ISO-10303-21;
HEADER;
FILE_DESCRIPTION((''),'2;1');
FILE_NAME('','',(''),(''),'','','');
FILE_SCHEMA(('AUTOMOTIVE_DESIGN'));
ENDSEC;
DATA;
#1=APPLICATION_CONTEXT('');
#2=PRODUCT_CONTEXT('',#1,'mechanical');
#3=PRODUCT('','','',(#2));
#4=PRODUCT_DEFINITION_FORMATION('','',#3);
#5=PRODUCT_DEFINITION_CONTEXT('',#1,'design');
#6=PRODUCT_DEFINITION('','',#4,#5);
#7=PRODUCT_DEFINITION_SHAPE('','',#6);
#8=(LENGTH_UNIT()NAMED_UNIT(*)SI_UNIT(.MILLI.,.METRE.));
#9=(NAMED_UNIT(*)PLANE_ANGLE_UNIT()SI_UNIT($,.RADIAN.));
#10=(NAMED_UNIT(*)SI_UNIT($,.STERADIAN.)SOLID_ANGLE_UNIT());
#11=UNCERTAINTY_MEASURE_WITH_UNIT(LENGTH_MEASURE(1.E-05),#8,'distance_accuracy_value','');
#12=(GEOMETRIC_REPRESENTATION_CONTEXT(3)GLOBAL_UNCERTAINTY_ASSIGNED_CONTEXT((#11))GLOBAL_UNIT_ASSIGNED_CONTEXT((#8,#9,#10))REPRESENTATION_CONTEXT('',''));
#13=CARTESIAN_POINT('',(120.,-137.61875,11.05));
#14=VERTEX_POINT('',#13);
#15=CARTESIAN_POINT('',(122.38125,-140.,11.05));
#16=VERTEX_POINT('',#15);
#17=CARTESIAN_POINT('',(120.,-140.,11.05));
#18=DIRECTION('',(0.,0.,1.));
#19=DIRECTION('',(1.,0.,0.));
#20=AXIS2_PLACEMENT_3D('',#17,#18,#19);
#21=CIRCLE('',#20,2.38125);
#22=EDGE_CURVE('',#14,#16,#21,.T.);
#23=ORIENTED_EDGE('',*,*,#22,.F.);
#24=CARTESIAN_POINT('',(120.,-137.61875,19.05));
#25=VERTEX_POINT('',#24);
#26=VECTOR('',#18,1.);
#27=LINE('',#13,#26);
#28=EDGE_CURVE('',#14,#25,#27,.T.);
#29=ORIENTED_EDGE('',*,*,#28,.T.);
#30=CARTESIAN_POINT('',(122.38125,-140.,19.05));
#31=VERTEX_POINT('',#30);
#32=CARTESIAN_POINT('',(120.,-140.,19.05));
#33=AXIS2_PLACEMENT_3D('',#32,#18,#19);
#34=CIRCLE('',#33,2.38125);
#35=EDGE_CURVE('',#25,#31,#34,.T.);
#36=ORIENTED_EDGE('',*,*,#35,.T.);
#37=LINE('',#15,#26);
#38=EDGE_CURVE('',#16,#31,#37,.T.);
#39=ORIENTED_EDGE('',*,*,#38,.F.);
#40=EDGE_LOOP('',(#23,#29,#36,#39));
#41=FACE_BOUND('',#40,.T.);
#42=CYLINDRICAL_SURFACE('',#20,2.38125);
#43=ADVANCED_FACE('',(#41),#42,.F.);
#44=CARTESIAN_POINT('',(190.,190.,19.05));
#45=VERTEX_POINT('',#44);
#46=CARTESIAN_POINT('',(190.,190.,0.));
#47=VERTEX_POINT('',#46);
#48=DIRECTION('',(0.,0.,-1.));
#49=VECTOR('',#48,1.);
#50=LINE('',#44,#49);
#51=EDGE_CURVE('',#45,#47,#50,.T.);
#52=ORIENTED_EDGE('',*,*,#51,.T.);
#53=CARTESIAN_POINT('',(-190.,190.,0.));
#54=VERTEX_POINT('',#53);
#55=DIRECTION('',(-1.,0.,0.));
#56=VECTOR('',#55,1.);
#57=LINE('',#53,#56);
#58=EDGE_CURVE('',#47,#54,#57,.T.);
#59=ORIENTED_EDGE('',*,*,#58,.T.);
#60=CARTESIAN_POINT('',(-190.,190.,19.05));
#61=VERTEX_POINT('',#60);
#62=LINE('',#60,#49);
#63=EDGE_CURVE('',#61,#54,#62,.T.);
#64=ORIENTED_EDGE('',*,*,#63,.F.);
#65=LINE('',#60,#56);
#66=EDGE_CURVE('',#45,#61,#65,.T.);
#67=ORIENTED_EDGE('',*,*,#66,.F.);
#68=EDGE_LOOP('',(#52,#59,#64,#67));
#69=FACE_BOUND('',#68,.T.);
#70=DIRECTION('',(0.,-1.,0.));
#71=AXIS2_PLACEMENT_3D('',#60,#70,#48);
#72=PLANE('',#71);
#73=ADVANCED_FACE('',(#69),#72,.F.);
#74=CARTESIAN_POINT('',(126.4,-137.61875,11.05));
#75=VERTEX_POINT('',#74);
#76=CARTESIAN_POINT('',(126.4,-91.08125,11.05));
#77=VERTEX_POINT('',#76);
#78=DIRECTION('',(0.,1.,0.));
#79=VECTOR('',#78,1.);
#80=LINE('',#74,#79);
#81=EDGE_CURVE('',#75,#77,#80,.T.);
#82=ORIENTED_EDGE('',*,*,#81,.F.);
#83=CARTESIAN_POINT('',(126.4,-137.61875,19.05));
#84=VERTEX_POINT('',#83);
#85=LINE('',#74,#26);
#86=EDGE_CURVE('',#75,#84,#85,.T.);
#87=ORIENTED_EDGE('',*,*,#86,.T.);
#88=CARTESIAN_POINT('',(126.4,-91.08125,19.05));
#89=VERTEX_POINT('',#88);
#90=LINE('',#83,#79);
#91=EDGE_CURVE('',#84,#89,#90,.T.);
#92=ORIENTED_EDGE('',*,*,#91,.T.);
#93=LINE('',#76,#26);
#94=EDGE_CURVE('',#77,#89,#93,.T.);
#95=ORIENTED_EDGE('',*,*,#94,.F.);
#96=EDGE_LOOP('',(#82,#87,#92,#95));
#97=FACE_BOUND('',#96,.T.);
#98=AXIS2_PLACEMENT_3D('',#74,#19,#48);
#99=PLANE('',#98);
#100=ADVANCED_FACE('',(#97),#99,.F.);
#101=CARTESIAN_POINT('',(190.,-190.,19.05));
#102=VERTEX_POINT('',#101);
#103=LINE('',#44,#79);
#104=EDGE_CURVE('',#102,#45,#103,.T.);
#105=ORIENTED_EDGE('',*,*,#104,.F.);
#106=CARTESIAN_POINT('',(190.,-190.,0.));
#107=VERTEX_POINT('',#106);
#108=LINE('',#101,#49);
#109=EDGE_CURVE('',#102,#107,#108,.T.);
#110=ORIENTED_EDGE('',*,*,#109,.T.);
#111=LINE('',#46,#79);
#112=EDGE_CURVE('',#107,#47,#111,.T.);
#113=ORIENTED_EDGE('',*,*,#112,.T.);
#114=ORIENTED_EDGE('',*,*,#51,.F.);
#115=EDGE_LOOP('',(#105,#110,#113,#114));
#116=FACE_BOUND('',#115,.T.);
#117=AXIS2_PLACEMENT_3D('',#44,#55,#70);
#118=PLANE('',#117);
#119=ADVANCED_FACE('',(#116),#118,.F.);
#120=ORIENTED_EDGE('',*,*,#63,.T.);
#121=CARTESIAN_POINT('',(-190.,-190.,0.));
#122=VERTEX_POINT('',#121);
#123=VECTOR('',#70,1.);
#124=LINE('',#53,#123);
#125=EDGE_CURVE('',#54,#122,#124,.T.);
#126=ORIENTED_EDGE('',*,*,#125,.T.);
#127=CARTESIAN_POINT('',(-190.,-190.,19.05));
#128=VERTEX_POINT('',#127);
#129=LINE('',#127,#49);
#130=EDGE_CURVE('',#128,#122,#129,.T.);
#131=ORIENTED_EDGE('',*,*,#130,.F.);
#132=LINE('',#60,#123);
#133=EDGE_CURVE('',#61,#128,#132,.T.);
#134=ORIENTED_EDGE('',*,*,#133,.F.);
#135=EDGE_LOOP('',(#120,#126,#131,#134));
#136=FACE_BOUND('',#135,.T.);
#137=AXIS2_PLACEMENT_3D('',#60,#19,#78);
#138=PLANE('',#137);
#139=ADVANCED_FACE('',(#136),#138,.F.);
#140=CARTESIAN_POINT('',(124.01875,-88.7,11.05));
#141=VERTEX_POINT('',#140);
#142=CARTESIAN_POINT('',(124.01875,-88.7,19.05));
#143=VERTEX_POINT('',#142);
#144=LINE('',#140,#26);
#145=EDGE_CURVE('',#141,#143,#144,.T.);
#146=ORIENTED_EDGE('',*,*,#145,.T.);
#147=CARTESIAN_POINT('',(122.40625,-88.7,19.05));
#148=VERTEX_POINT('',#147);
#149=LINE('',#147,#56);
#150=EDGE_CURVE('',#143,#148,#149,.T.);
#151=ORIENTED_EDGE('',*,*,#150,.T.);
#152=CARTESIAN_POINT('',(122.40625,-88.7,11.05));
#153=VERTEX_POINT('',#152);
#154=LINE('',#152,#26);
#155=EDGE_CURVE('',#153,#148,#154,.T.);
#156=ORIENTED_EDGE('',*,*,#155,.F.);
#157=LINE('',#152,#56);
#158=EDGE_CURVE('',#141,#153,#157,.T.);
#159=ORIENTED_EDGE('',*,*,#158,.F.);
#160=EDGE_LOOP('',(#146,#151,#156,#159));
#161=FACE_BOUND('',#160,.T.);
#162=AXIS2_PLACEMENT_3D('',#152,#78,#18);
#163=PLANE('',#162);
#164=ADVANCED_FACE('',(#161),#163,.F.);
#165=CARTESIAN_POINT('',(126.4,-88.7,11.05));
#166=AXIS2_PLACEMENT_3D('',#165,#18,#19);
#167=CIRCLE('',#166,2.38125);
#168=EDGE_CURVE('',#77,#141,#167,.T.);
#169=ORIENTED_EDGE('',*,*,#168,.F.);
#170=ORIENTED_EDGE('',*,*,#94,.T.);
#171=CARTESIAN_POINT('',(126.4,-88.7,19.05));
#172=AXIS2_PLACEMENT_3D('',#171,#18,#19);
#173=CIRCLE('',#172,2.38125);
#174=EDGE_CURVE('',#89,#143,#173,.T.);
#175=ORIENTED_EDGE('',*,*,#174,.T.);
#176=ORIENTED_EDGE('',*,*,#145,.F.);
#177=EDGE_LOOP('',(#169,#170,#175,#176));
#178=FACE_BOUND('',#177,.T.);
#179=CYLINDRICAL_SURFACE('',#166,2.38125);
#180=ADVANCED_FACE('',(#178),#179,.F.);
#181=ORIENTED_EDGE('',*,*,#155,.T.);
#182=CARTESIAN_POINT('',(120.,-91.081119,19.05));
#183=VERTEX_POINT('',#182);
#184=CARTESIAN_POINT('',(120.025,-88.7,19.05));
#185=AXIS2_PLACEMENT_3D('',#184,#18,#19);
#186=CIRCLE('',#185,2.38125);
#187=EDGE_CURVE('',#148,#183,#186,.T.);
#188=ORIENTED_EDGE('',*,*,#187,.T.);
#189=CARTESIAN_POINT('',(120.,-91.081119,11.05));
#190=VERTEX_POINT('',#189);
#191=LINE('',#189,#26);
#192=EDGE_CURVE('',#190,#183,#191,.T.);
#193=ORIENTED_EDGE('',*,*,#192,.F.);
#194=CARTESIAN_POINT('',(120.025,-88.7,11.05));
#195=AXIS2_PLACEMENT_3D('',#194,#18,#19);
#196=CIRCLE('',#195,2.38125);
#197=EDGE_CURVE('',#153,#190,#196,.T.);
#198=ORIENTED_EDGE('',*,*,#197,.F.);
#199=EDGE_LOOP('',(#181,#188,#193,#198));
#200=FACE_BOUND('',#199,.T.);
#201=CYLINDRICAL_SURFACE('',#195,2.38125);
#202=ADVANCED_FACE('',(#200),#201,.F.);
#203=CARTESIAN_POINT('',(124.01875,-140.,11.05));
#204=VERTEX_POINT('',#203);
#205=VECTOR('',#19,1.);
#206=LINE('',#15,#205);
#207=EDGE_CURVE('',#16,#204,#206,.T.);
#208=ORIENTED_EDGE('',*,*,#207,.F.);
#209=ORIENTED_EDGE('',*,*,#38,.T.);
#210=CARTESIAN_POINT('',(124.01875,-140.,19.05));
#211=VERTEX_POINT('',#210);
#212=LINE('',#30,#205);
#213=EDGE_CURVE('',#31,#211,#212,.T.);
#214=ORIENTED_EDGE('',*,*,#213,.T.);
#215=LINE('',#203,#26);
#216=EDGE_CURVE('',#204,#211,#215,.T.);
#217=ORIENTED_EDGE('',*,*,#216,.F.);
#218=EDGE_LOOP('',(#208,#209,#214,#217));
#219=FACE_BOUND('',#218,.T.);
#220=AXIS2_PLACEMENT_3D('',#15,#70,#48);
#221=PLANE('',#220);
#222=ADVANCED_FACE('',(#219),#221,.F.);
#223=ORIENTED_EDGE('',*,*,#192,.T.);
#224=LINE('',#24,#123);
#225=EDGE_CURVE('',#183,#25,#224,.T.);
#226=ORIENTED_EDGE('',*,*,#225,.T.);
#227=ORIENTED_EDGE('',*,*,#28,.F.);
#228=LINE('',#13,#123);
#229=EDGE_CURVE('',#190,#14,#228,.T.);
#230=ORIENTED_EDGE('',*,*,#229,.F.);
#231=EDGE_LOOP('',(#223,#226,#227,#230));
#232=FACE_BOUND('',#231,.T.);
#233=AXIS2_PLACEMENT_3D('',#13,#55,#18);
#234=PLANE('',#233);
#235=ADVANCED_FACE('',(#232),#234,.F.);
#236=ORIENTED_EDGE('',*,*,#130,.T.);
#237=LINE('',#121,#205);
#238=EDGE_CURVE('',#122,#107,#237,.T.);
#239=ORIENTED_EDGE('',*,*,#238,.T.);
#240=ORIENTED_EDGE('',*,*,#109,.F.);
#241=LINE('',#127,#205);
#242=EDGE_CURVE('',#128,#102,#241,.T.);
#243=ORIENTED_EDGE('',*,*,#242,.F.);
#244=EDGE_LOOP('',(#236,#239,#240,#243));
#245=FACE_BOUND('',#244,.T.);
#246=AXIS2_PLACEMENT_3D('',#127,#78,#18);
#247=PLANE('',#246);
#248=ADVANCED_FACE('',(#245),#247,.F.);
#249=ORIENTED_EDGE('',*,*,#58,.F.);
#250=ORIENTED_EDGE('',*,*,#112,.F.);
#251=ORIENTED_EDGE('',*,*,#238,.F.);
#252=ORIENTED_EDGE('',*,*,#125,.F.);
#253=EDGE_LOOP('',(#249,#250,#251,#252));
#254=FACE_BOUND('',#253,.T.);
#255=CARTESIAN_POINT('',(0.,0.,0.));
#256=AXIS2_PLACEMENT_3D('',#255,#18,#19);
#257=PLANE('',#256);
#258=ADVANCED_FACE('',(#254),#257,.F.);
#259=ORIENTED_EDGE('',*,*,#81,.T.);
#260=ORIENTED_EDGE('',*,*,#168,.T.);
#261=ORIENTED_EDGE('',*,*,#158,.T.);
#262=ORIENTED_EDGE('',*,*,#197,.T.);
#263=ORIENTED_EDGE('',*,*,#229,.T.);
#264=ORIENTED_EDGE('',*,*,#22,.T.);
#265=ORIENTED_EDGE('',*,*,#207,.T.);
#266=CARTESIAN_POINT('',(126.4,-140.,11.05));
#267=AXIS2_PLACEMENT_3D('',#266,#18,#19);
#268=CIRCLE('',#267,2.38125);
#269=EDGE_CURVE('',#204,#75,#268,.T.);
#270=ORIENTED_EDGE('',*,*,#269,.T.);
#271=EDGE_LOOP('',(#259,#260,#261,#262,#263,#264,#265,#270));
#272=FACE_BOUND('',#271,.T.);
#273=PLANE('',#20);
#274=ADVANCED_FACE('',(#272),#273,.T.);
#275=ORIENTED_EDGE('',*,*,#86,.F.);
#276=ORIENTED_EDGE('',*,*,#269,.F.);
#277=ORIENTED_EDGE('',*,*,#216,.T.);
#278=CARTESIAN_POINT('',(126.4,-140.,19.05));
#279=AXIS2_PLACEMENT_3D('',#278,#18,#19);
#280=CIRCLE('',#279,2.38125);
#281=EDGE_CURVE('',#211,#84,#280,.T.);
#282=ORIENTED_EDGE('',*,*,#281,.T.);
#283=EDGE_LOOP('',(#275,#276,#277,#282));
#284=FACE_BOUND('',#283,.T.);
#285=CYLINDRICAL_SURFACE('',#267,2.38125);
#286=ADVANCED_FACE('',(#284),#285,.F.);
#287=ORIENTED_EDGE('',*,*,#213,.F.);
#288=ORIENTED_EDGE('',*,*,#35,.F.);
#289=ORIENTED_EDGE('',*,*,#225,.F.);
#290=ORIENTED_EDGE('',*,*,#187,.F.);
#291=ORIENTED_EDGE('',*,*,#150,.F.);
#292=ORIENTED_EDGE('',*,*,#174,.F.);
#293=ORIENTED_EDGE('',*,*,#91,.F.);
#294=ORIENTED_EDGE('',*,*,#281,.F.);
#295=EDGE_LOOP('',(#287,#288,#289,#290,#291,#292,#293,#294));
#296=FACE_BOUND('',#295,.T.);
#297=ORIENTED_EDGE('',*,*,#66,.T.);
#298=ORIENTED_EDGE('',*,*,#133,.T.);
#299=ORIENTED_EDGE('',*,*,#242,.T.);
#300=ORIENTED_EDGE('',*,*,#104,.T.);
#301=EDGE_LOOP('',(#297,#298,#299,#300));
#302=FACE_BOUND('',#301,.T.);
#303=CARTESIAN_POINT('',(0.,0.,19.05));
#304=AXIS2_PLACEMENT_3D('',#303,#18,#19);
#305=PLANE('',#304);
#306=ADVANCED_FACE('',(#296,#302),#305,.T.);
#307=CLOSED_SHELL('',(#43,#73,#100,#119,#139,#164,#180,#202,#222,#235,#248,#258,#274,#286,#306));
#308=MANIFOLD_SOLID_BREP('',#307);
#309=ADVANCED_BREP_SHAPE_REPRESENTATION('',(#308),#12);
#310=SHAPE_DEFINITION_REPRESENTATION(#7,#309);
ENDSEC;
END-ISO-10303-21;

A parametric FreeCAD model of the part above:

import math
import FreeCAD as App
import Part
import Sketcher

V = App.Vector

doc = App.newDocument("Part")
body = doc.addObject("PartDesign::Body", "Body")

# Sketch on XY plane
sketch1 = body.newObject("Sketcher::SketchObject", "Sketch")
sketch1.AttachmentSupport = (doc.getObject("XY_Plane"), [""])
sketch1.MapMode = "FlatFace"
sketch1.addGeometry(Part.LineSegment(V(-190, 190, 0), V(-190, -190, 0)), False)
sketch1.addGeometry(Part.LineSegment(V(-190, -190, 0), V(190, -190, 0)), False)
sketch1.addGeometry(Part.LineSegment(V(190, -190, 0), V(190, 190, 0)), False)
sketch1.addGeometry(Part.LineSegment(V(190, 190, 0), V(-190, 190, 0)), False)
sketch1.addConstraint(Sketcher.Constraint("Coincident", 0, 2, 1, 1))
sketch1.addConstraint(Sketcher.Constraint("Coincident", 1, 2, 2, 1))
sketch1.addConstraint(Sketcher.Constraint("Coincident", 2, 2, 3, 1))
sketch1.addConstraint(Sketcher.Constraint("Coincident", 3, 2, 0, 1))
sketch1.addConstraint(Sketcher.Constraint("Vertical", 0))
sketch1.addConstraint(Sketcher.Constraint("Horizontal", 1))
sketch1.addConstraint(Sketcher.Constraint("Vertical", 2))
sketch1.addConstraint(Sketcher.Constraint("Horizontal", 3))
sketch1.addConstraint(Sketcher.Constraint("Symmetric", 0, 2, 2, 2, -1, 1))
sketch1.addConstraint(Sketcher.Constraint("Equal", 3, 0))
sketch1.addConstraint(Sketcher.Constraint("DistanceX", 1, 1, 1, 2, 380.0))
pad1 = body.newObject("PartDesign::Pad", "Pad")
pad1.Profile = sketch1
pad1.Length = 19.05

# Sketch on XY plane
sketch2 = body.newObject("Sketcher::SketchObject", "Sketch001")
sketch2.AttachmentSupport = (doc.getObject("XY_Plane"), [""])
sketch2.MapMode = "FlatFace"
sketch2.AttachmentOffset = App.Placement(V(0, 0, 19.05), App.Rotation())
sketch2.addGeometry(Part.LineSegment(V(120, -91.081119, 0), V(120, -137.61875, 0)), False)
sketch2.addGeometry(Part.ArcOfCircle(Part.Circle(V(120, -140, 0), V(0, 0, 1), 2.38125), math.radians(90), math.radians(360)), False)
sketch2.addGeometry(Part.LineSegment(V(122.38125, -140, 0), V(124.01875, -140, 0)), False)
sketch2.addGeometry(Part.ArcOfCircle(Part.Circle(V(126.4, -140, 0), V(0, 0, 1), 2.38125), math.radians(180), math.radians(450)), False)
sketch2.addGeometry(Part.LineSegment(V(126.4, -137.61875, 0), V(126.4, -91.08125, 0)), False)
sketch2.addGeometry(Part.ArcOfCircle(Part.Circle(V(126.4, -88.7, 0), V(0, 0, 1), 2.38125), math.radians(-90), math.radians(180)), False)
sketch2.addGeometry(Part.LineSegment(V(124.01875, -88.7, 0), V(122.40625, -88.7, 0)), False)
sketch2.addGeometry(Part.ArcOfCircle(Part.Circle(V(120.025, -88.7, 0), V(0, 0, 1), 2.38125), math.radians(0), math.radians(269.398458)), False)
sketch2.addConstraint(Sketcher.Constraint("Coincident", 0, 2, 1, 1))
sketch2.addConstraint(Sketcher.Constraint("Coincident", 1, 2, 2, 1))
sketch2.addConstraint(Sketcher.Constraint("Coincident", 2, 2, 3, 1))
sketch2.addConstraint(Sketcher.Constraint("Coincident", 3, 2, 4, 1))
sketch2.addConstraint(Sketcher.Constraint("Coincident", 4, 2, 5, 1))
sketch2.addConstraint(Sketcher.Constraint("Coincident", 5, 2, 6, 1))
sketch2.addConstraint(Sketcher.Constraint("Coincident", 6, 2, 7, 1))
sketch2.addConstraint(Sketcher.Constraint("Coincident", 7, 2, 0, 1))
sketch2.addConstraint(Sketcher.Constraint("Vertical", 0))
sketch2.addConstraint(Sketcher.Constraint("Horizontal", 2))
sketch2.addConstraint(Sketcher.Constraint("Vertical", 4))
sketch2.addConstraint(Sketcher.Constraint("Horizontal", 6))
sketch2.addConstraint(Sketcher.Constraint("Equal", 1, 3))
sketch2.addConstraint(Sketcher.Constraint("Equal", 3, 5))
sketch2.addConstraint(Sketcher.Constraint("Equal", 5, 7))
sketch2.addConstraint(Sketcher.Constraint("Horizontal", 1, 3, 3, 3))
sketch2.addConstraint(Sketcher.Constraint("Horizontal", 5, 3, 7, 3))
sketch2.addConstraint(Sketcher.Constraint("Horizontal", 3, 3, 1, 2))
sketch2.addConstraint(Sketcher.Constraint("Horizontal", 7, 3, 5, 2))
sketch2.addConstraint(Sketcher.Constraint("Vertical", 3, 3, 5, 3))
sketch2.addConstraint(Sketcher.Constraint("Vertical", 1, 3, 0, 2))
sketch2.addConstraint(Sketcher.Constraint("Vertical", 5, 3, 3, 2))
sketch2.addConstraint(Sketcher.Constraint("DistanceX", -1, 1, 1, 3, 120.0))
sketch2.addConstraint(Sketcher.Constraint("DistanceY", 1, 3, -1, 1, 140.0))
sketch2.addConstraint(Sketcher.Constraint("DistanceX", -1, 1, 3, 3, 126.4))
sketch2.addConstraint(Sketcher.Constraint("DistanceY", 5, 3, -1, 1, 88.7))
sketch2.addConstraint(Sketcher.Constraint("Radius", 1, 2.38125))
sketch2.addConstraint(Sketcher.Constraint("DistanceX", 6, 2, 6, 1, 1.6125))
pocket1 = body.newObject("PartDesign::Pocket", "Pocket")
pocket1.Profile = sketch2
pocket1.Length = 8

doc.recompute()
